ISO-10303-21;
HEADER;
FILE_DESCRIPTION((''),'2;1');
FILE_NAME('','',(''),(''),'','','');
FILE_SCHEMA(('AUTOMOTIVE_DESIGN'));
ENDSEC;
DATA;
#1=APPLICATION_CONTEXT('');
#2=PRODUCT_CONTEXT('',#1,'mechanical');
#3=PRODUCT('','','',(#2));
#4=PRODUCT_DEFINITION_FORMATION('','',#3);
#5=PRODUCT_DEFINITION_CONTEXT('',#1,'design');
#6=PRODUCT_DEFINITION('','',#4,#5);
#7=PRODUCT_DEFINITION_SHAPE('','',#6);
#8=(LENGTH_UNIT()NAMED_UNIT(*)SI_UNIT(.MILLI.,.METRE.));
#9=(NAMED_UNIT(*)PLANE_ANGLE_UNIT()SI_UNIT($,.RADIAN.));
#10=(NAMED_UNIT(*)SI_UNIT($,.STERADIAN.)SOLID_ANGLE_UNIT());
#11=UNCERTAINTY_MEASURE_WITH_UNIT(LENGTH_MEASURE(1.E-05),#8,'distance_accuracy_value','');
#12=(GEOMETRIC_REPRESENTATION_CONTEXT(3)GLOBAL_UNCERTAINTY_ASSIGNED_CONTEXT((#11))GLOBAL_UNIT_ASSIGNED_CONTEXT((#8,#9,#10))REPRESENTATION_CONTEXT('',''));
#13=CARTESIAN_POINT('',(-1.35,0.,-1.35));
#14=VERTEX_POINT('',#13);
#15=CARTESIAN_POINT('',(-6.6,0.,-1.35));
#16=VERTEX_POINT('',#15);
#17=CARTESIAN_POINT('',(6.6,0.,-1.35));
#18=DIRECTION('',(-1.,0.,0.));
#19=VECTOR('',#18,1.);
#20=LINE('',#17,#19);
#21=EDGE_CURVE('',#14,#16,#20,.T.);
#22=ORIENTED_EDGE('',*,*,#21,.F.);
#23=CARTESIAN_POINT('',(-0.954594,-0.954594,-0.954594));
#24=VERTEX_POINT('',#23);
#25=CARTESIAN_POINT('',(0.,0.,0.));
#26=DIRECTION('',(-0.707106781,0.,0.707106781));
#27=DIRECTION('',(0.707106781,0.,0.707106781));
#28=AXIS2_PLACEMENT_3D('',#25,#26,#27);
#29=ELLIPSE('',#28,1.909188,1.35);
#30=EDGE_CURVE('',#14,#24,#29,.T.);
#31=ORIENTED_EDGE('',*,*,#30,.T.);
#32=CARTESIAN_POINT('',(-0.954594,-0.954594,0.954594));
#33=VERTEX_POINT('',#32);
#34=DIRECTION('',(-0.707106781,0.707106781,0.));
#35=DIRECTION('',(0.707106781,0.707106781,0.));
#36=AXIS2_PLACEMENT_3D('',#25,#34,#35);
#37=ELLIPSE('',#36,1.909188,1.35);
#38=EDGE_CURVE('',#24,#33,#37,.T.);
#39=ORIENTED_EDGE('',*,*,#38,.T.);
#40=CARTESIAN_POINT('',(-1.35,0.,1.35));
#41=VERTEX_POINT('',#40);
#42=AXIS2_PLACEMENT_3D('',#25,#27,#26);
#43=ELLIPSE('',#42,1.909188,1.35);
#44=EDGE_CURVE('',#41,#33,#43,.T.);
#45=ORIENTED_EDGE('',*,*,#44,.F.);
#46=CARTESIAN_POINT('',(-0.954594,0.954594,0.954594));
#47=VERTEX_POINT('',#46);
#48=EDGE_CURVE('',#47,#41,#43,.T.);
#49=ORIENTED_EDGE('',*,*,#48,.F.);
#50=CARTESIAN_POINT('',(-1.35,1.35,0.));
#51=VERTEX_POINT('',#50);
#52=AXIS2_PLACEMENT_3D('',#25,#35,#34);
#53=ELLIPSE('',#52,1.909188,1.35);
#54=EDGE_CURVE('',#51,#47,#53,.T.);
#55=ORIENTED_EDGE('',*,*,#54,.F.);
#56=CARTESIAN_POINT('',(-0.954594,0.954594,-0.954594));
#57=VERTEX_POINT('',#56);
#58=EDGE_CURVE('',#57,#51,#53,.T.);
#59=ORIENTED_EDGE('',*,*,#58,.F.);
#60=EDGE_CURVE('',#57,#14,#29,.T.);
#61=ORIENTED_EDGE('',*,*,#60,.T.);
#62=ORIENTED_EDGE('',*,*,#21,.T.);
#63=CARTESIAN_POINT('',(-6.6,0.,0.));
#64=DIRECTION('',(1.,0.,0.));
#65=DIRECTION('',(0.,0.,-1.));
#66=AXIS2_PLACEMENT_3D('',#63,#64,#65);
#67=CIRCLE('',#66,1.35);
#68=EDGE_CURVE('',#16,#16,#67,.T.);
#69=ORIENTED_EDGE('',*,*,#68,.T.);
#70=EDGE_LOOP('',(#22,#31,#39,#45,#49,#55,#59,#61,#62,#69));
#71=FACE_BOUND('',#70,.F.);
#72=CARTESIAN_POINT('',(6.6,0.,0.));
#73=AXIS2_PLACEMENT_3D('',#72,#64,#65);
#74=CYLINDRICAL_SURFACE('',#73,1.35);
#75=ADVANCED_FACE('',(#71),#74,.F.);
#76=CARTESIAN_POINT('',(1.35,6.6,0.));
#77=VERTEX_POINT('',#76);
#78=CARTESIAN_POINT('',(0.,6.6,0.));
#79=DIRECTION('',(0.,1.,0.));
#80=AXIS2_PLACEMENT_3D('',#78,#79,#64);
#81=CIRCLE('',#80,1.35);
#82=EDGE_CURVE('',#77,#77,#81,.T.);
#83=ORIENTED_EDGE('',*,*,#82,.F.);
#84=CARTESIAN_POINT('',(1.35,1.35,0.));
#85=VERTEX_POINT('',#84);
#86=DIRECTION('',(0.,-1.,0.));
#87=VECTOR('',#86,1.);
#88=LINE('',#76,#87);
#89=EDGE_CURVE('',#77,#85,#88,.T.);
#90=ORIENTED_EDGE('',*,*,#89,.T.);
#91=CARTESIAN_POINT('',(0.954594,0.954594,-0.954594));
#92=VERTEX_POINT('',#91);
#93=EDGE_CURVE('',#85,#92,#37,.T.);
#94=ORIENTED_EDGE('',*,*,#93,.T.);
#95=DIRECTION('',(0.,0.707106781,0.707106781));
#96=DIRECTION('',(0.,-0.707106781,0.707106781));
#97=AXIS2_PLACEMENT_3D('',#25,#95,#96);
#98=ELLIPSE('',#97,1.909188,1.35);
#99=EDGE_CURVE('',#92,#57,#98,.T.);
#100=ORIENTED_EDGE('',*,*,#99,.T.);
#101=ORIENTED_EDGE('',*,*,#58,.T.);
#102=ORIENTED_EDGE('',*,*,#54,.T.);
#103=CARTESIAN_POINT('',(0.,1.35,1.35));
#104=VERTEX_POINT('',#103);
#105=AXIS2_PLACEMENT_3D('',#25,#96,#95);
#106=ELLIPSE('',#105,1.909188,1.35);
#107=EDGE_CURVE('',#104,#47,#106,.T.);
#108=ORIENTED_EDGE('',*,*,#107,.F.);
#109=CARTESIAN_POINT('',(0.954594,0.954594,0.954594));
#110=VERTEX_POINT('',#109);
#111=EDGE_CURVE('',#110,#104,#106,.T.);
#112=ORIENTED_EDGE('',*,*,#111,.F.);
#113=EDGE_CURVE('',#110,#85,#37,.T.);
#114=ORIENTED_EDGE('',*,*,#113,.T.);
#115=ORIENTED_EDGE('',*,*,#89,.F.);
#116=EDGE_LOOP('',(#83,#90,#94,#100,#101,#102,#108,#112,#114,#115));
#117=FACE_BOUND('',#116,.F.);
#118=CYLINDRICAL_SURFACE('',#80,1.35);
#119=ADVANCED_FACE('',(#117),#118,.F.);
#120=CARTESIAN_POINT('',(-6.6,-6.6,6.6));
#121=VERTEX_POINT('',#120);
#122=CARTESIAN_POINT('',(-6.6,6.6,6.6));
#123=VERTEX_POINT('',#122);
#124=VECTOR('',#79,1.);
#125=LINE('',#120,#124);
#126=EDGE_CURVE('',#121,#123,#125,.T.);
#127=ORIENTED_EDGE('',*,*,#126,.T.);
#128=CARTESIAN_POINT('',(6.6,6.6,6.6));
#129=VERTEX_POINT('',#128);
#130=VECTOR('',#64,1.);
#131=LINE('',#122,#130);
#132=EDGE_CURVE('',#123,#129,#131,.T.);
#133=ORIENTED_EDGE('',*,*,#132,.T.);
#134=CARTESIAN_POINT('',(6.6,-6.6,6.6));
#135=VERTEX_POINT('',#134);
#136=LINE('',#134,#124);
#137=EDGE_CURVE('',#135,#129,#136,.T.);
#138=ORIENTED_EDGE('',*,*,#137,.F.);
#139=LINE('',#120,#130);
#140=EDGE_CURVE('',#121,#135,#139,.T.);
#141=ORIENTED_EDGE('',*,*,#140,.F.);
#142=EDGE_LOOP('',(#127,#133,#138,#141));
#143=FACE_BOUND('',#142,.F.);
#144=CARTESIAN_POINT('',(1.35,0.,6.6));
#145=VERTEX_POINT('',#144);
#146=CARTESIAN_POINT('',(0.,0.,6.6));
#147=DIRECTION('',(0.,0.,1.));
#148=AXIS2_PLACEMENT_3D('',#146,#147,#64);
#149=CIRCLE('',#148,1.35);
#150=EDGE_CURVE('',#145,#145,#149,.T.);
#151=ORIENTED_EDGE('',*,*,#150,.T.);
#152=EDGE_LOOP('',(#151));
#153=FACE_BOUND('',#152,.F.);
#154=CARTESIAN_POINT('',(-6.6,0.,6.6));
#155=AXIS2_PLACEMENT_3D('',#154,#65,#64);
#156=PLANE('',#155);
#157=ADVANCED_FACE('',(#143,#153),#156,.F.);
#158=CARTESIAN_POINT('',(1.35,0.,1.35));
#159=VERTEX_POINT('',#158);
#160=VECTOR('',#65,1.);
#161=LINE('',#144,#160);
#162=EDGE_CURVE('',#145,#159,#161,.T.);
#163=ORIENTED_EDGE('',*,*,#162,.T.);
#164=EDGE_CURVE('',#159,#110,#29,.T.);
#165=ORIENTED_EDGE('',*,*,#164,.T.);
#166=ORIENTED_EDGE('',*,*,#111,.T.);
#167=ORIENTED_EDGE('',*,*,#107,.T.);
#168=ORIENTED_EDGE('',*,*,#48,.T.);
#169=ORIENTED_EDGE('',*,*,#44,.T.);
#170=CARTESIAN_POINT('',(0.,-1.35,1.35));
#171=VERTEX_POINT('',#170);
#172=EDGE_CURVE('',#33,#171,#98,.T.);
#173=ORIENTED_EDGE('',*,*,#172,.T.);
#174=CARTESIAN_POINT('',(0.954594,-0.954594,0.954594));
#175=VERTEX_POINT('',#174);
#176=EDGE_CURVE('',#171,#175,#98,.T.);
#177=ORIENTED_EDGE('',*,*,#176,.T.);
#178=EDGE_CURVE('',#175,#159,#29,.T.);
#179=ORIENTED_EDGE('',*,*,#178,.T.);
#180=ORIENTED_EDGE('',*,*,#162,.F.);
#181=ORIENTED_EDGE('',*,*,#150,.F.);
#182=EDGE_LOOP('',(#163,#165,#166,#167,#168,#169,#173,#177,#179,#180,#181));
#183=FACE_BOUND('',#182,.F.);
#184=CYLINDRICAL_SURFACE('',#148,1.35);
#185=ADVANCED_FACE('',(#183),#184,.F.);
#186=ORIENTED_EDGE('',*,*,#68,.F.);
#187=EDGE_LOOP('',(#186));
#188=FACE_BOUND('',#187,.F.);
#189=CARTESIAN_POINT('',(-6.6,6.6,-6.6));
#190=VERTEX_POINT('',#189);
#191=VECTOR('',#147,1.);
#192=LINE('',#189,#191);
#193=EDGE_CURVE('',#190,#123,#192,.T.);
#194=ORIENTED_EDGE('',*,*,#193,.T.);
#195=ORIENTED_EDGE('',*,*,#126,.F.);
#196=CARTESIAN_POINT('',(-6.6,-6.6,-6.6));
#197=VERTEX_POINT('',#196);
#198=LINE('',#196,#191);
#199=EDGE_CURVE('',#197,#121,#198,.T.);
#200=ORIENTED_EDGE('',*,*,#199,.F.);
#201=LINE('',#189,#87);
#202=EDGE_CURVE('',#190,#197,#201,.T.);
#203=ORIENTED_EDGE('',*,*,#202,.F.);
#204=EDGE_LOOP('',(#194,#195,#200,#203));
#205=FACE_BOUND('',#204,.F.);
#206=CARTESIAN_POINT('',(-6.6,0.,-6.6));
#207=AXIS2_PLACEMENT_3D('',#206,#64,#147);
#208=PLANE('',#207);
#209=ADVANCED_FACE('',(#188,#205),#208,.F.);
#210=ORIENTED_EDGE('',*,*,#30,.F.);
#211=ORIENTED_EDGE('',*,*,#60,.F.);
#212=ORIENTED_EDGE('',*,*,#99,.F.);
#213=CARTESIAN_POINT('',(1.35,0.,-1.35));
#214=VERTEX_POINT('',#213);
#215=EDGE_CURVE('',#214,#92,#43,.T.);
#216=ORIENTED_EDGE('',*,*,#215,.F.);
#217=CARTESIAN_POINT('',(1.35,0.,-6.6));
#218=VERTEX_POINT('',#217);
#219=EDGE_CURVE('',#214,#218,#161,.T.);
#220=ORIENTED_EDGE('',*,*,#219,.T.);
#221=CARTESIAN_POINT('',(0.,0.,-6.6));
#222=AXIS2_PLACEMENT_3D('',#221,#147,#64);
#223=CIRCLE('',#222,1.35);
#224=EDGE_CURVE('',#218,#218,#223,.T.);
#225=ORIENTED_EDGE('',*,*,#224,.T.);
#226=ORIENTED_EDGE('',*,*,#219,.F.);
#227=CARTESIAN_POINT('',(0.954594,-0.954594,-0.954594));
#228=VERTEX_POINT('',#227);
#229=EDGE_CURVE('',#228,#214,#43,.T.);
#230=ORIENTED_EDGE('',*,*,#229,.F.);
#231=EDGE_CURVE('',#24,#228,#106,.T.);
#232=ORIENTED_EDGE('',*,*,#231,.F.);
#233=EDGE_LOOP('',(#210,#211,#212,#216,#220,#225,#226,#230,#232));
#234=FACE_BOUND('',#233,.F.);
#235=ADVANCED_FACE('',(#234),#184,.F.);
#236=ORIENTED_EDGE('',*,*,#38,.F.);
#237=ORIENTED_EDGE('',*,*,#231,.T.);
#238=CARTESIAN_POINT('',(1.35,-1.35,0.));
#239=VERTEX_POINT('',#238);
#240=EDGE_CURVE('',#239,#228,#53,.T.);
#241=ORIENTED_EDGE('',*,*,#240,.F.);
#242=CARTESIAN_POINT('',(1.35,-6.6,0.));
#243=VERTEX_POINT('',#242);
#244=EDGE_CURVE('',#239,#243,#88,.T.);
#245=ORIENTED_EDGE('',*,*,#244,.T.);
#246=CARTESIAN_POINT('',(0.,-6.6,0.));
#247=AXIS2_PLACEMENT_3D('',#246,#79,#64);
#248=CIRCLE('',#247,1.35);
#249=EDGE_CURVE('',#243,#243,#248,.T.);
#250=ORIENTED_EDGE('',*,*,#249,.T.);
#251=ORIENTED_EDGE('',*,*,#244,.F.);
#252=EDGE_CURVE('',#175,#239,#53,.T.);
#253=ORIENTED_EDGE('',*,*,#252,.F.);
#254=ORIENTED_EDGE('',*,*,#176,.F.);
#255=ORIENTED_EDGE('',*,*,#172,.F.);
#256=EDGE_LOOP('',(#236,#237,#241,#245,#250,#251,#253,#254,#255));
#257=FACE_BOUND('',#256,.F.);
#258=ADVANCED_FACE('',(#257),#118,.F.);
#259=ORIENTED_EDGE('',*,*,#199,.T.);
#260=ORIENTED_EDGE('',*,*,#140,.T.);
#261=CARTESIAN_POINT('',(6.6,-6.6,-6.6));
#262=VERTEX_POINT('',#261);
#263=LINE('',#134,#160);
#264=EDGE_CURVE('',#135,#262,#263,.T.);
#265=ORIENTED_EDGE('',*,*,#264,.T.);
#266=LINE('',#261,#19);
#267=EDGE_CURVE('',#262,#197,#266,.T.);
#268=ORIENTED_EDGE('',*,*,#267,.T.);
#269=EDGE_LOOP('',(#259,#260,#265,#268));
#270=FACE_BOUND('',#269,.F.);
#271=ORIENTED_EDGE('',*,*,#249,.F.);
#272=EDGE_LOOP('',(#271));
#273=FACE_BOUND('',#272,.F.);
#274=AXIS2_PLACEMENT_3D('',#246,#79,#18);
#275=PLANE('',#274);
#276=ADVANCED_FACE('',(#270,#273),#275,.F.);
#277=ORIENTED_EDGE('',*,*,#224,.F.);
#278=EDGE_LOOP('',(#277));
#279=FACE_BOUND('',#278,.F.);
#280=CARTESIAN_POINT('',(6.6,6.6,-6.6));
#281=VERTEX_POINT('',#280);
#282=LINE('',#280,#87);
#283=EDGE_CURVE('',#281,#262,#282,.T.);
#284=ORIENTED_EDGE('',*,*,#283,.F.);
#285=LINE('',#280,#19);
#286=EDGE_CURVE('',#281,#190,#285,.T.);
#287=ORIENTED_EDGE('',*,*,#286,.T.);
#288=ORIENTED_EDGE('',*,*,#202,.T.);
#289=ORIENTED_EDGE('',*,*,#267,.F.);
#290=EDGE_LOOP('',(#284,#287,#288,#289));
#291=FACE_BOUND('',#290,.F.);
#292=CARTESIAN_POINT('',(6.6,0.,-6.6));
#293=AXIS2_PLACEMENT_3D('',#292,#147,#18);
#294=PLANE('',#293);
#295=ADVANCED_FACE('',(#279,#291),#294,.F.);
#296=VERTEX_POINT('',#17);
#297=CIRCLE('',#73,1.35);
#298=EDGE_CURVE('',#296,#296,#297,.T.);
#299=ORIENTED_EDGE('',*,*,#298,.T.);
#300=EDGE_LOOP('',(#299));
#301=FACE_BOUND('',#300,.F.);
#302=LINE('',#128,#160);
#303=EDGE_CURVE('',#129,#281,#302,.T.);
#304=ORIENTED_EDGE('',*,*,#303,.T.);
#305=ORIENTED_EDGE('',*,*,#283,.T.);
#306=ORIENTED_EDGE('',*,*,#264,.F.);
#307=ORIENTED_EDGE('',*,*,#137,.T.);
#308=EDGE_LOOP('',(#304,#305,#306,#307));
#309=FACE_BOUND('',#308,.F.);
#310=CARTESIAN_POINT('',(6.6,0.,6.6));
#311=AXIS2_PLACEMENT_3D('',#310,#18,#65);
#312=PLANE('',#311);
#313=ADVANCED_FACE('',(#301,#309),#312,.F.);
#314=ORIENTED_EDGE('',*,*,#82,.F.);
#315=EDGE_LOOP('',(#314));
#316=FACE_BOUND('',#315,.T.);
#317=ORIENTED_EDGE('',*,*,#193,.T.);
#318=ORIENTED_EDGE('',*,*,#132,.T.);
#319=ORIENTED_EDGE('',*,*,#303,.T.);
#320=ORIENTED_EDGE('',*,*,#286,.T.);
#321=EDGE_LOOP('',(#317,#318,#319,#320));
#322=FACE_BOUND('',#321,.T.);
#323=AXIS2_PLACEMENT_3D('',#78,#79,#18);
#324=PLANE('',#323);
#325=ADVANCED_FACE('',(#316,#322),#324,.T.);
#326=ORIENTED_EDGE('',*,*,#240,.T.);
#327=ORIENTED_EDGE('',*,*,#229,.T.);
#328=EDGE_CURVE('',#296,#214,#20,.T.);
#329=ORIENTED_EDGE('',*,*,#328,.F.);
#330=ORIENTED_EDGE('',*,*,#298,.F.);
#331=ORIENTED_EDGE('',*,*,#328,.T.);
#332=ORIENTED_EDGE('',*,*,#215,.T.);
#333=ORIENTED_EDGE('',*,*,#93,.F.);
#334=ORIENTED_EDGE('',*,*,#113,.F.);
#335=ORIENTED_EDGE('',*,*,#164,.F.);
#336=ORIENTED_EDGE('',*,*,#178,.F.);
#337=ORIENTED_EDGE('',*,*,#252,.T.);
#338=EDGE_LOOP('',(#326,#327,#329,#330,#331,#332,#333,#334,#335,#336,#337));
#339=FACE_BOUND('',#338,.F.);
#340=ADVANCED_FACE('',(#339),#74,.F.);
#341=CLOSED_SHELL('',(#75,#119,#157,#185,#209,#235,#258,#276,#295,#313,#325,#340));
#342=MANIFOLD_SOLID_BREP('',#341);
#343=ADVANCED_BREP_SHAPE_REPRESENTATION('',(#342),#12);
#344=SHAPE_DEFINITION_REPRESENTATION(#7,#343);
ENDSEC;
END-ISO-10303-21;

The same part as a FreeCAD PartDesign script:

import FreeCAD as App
import Part
import Sketcher
from FreeCAD import Vector

doc = App.newDocument("Part")
body = doc.addObject("PartDesign::Body", "Body")

# Sketch on XZ plane
sketch1 = body.newObject("Sketcher::SketchObject", "Sketch")
sketch1.AttachmentSupport = (doc.getObject("XZ_Plane"), [""])
sketch1.MapMode = "FlatFace"
sketch1.addGeometry([
    Part.LineSegment(Vector(-6.6, -6.6, 0), Vector(-6.6, 6.6, 0)),
    Part.LineSegment(Vector(-6.6, 6.6, 0), Vector(6.6, 6.6, 0)),
    Part.LineSegment(Vector(6.6, 6.6, 0), Vector(6.6, -6.6, 0)),
    Part.LineSegment(Vector(6.6, -6.6, 0), Vector(-6.6, -6.6, 0)),
], False)
sketch1.addConstraint([
    Sketcher.Constraint("Coincident", 0, 2, 1, 1),
    Sketcher.Constraint("Coincident", 1, 2, 2, 1),
    Sketcher.Constraint("Coincident", 2, 2, 3, 1),
    Sketcher.Constraint("Coincident", 3, 2, 0, 1),
    Sketcher.Constraint("Vertical", 0),
    Sketcher.Constraint("Horizontal", 1),
    Sketcher.Constraint("Vertical", 2),
    Sketcher.Constraint("Horizontal", 3),
    Sketcher.Constraint("Symmetric", 0, 2, 2, 2, -1, 1),
    Sketcher.Constraint("Equal", 3, 0),
    Sketcher.Constraint("DistanceX", 1, 1, 1, 2, 13.2),
])
pad1 = body.newObject("PartDesign::Pad", "Pad")
pad1.Profile = sketch1
pad1.Length = 13.2
pad1.Midplane = True

# Sketch on XY plane
sketch2 = body.newObject("Sketcher::SketchObject", "Sketch001")
sketch2.AttachmentSupport = (doc.getObject("XY_Plane"), [""])
sketch2.MapMode = "FlatFace"
sketch2.AttachmentOffset = App.Placement(Vector(0, 0, 6.6), App.Rotation())
sketch2.addGeometry(Part.Circle(Vector(0, 0, 0), Vector(0, 0, 1), 1.35), False)
sketch2.addConstraint([
    Sketcher.Constraint("Coincident", 0, 3, -1, 1),
    Sketcher.Constraint("Diameter", 0, 2.7),
])
pocket1 = body.newObject("PartDesign::Pocket", "Pocket")
pocket1.Profile = sketch2
pocket1.Type = "ThroughAll"
pocket1.Midplane = True

# Sketch on XZ plane
sketch3 = body.newObject("Sketcher::SketchObject", "Sketch002")
sketch3.AttachmentSupport = (doc.getObject("XZ_Plane"), [""])
sketch3.MapMode = "FlatFace"
sketch3.AttachmentOffset = App.Placement(Vector(0, 0, -6.6), App.Rotation())
sketch3.addGeometry(Part.Circle(Vector(0, 0, 0), Vector(0, 0, 1), 1.35), False)
sketch3.addConstraint([
    Sketcher.Constraint("Coincident", 0, 3, -1, 1),
    Sketcher.Constraint("Diameter", 0, 2.7),
])
pocket2 = body.newObject("PartDesign::Pocket", "Pocket001")
pocket2.Profile = sketch3
pocket2.Type = "ThroughAll"
pocket2.Midplane = True

# Sketch on YZ plane
sketch4 = body.newObject("Sketcher::SketchObject", "Sketch003")
sketch4.AttachmentSupport = (doc.getObject("YZ_Plane"), [""])
sketch4.MapMode = "FlatFace"
sketch4.AttachmentOffset = App.Placement(Vector(0, 0, 6.6), App.Rotation())
sketch4.addGeometry(Part.Circle(Vector(0, 0, 0), Vector(0, 0, 1), 1.35), False)
sketch4.addConstraint([
    Sketcher.Constraint("Coincident", 0, 3, -1, 1),
    Sketcher.Constraint("Diameter", 0, 2.7),
])
pocket3 = body.newObject("PartDesign::Pocket", "Pocket002")
pocket3.Profile = sketch4
pocket3.Type = "ThroughAll"

doc.recompute()
